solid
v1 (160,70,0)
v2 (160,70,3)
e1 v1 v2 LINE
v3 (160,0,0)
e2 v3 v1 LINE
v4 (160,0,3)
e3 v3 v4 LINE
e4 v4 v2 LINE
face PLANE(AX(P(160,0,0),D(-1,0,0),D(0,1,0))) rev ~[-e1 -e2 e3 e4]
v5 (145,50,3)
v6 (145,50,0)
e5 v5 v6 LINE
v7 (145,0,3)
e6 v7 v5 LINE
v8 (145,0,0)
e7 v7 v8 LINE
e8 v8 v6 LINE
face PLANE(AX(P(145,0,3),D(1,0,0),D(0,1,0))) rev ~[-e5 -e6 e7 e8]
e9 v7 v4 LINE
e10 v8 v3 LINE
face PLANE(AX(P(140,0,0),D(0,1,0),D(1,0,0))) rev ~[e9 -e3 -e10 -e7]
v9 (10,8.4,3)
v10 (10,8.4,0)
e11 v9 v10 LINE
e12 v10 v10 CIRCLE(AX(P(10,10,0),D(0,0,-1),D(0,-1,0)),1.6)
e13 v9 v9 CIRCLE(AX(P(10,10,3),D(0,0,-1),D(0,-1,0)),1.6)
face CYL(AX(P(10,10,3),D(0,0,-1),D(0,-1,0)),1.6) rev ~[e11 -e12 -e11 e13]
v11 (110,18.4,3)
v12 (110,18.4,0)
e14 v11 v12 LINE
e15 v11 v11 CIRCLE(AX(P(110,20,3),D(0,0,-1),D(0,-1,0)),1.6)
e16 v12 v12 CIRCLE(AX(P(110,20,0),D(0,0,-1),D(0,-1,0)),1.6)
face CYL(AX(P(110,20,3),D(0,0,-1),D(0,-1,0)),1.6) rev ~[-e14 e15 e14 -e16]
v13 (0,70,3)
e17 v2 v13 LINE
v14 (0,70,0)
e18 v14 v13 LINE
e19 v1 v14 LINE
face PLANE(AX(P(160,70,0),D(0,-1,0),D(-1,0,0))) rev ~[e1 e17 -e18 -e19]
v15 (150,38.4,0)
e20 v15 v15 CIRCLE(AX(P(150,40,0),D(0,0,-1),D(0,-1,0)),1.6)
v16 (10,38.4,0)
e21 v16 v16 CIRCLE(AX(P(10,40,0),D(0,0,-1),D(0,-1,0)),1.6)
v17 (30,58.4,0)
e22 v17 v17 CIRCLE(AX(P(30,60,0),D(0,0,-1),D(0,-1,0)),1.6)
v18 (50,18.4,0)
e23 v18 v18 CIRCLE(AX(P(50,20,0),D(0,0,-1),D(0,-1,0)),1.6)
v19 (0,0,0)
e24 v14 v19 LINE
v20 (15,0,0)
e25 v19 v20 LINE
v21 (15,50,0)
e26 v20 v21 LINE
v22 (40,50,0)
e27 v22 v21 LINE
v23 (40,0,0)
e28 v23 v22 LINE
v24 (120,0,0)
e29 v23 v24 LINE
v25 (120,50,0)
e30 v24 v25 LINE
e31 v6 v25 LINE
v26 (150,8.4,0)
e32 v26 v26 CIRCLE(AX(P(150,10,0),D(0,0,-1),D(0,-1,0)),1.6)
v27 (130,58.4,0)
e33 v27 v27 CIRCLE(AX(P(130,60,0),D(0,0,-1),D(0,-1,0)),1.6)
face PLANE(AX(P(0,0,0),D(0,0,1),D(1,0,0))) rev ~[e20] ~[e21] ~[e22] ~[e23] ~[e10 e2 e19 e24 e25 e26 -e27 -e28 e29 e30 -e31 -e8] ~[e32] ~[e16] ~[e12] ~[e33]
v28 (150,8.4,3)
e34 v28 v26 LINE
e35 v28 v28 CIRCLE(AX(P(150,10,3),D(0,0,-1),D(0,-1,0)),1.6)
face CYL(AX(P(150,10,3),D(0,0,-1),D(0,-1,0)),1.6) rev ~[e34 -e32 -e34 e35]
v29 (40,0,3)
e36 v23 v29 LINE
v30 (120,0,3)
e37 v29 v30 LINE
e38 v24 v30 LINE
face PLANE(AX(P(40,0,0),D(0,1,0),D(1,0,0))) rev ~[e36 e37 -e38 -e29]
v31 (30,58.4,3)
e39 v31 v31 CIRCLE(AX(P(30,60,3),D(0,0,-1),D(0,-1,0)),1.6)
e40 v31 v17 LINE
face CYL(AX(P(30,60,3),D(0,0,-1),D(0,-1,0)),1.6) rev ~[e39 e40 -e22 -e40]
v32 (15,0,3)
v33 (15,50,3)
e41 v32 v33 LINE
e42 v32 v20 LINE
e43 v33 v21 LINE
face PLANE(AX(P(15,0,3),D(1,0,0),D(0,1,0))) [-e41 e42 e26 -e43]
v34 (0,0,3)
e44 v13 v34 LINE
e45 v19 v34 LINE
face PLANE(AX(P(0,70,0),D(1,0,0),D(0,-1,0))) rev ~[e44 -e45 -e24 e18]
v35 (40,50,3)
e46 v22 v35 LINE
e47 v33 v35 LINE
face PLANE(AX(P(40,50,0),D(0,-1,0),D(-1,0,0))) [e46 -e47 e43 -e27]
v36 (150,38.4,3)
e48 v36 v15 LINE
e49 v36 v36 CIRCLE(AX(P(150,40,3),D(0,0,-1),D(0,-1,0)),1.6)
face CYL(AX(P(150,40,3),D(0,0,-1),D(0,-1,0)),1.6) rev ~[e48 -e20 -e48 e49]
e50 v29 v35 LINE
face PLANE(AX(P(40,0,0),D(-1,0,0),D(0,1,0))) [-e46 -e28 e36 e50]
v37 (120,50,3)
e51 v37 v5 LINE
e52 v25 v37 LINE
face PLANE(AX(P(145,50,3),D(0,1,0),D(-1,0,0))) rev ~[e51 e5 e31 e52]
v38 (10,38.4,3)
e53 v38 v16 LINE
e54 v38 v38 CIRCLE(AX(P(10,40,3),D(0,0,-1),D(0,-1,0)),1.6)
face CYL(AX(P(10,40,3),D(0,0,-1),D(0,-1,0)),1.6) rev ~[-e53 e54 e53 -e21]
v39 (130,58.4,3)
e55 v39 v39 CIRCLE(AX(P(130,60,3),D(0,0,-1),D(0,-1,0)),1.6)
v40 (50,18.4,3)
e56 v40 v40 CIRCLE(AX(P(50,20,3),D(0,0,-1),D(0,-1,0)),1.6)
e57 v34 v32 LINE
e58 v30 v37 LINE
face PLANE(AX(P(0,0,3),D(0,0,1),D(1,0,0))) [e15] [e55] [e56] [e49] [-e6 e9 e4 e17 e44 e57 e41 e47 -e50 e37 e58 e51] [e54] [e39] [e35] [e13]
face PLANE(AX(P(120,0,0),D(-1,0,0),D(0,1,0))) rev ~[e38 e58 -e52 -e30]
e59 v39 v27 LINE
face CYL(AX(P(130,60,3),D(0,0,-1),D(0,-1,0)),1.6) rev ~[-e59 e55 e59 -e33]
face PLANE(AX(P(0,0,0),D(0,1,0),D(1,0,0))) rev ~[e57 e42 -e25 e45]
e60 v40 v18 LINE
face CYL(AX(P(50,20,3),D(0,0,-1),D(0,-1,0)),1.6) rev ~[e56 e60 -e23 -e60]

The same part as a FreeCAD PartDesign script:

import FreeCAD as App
import Part
import Sketcher
Q = App.Units.Quantity


def add_polygon(sketch, points):
    """Adds a closed chain of lines whose ends are joined by coincident constraints."""
    first, n = sketch.GeometryCount, len(points)
    for a, b in zip(points, points[1:] + points[:1]):
        sketch.addGeometry(Part.LineSegment(App.Vector(*a, 0), App.Vector(*b, 0)), False)
    for i in range(n):
        sketch.addConstraint(Sketcher.Constraint("Coincident", first + i, 2, first + (i + 1) % n, 1))

doc = App.newDocument("Part")
body = doc.addObject("PartDesign::Body", "Body")

# Sketch on XY plane
sketch1 = body.newObject("Sketcher::SketchObject", "Sketch")
sketch1.AttachmentSupport = (doc.getObject("XY_Plane"), [""])
sketch1.MapMode = "FlatFace"
add_polygon(sketch1, [(0, 70), (0, 0), (20, 0), (20, 50), (40, 50), (40, 0), (120, 0), (120, 50), (140, 50), (140, 0), (160, 0), (160, 70)])  # lines 0-11
sketch1.addConstraint([
    Sketcher.Constraint("Vertical", 0),
    Sketcher.Constraint("Horizontal", 1),
    Sketcher.Constraint("Vertical", 2),
    Sketcher.Constraint("Horizontal", 3),
    Sketcher.Constraint("Vertical", 4),
    Sketcher.Constraint("Horizontal", 5),
    Sketcher.Constraint("Vertical", 6),
    Sketcher.Constraint("Horizontal", 7),
    Sketcher.Constraint("Vertical", 8),
    Sketcher.Constraint("Horizontal", 9),
    Sketcher.Constraint("Vertical", 10),
    Sketcher.Constraint("Horizontal", 11),
    Sketcher.Constraint("Coincident", 0, 2, -1, 1),
    Sketcher.Constraint("PointOnObject", 4, 2, -1),
    Sketcher.Constraint("PointOnObject", 8, 2, -1),
    Sketcher.Constraint("Horizontal", 3, 2, 6, 2),
    Sketcher.Constraint("Equal", 1, 3),
    Sketcher.Constraint("Equal", 3, 7),
    Sketcher.Constraint("Equal", 7, 9),
    Sketcher.Constraint("DistanceX", 1, 1, 1, 2, Q("20 mm")),
    Sketcher.Constraint("DistanceX", 11, 2, 11, 1, Q("160 mm")),
    Sketcher.Constraint("DistanceY", 0, 2, 0, 1, Q("70 mm")),
    Sketcher.Constraint("DistanceY", 2, 1, 2, 2, Q("50 mm")),
])
pad1 = body.newObject("PartDesign::Pad", "Pad")
pad1.Profile = sketch1
pad1.Length = 3

# Sketch on XY plane
sketch2 = body.newObject("Sketcher::SketchObject", "Sketch001")
sketch2.AttachmentSupport = (doc.getObject("XY_Plane"), [""])
sketch2.MapMode = "FlatFace"
sketch2.AttachmentOffset = App.Placement(App.Vector(0, 0, 3), App.Rotation())
sketch2.addGeometry([
    Part.Circle(App.Vector(10, 10, 0), App.Vector(0, 0, 1), 1.6),
    Part.Circle(App.Vector(150, 10, 0), App.Vector(0, 0, 1), 1.6),
    Part.Circle(App.Vector(10, 40, 0), App.Vector(0, 0, 1), 1.6),
    Part.Circle(App.Vector(150, 40, 0), App.Vector(0, 0, 1), 1.6),
], False)
sketch2.addConstraint([
    Sketcher.Constraint("Equal", 0, 1),
    Sketcher.Constraint("Equal", 1, 2),
    Sketcher.Constraint("Equal", 2, 3),
    Sketcher.Constraint("Horizontal", 0, 3, 1, 3),
    Sketcher.Constraint("Horizontal", 2, 3, 3, 3),
    Sketcher.Constraint("Vertical", 0, 3, 2, 3),
    Sketcher.Constraint("Vertical", 1, 3, 3, 3),
    Sketcher.Constraint("Diameter", 0, Q("3.2 mm")),
    Sketcher.Constraint("DistanceX", -1, 1, 0, 3, Q("10 mm")),
    Sketcher.Constraint("DistanceY", -1, 1, 0, 3, Q("10 mm")),
    Sketcher.Constraint("DistanceX", -1, 1, 1, 3, Q("150 mm")),
    Sketcher.Constraint("DistanceY", -1, 1, 2, 3, Q("40 mm")),
])
doc.recompute()
hole = body.newObject("PartDesign::Hole", "Hole")
hole.Profile = sketch2
hole.ThreadType = "None"
hole.Diameter = 3.2
hole.DepthType = "ThroughAll"

# Sketch on XY plane
sketch3 = body.newObject("Sketcher::SketchObject", "Sketch002")
sketch3.AttachmentSupport = (doc.getObject("XY_Plane"), [""])
sketch3.MapMode = "FlatFace"
sketch3.AttachmentOffset = App.Placement(App.Vector(0, 0, 3), App.Rotation())
sketch3.addGeometry([
    Part.Circle(App.Vector(30, 60, 0), App.Vector(0, 0, 1), 1.6),
    Part.Circle(App.Vector(130, 60, 0), App.Vector(0, 0, 1), 1.6),
], False)
sketch3.addConstraint([
    Sketcher.Constraint("Equal", 0, 1),
    Sketcher.Constraint("Horizontal", 0, 3, 1, 3),
    Sketcher.Constraint("Diameter", 0, Q("3.2 mm")),
    Sketcher.Constraint("DistanceX", -1, 1, 0, 3, Q("30 mm")),
    Sketcher.Constraint("DistanceY", -1, 1, 0, 3, Q("60 mm")),
    Sketcher.Constraint("DistanceX", -1, 1, 1, 3, Q("130 mm")),
])
doc.recompute()
hole2 = body.newObject("PartDesign::Hole", "Hole001")
hole2.Profile = sketch3
hole2.ThreadType = "None"
hole2.Diameter = 3.2
hole2.DepthType = "ThroughAll"

# Sketch on XY plane
sketch4 = body.newObject("Sketcher::SketchObject", "Sketch003")
sketch4.AttachmentSupport = (doc.getObject("XY_Plane"), [""])
sketch4.MapMode = "FlatFace"
sketch4.AttachmentOffset = App.Placement(App.Vector(0, 0, 3), App.Rotation())
sketch4.addGeometry([
    Part.Circle(App.Vector(50, 20, 0), App.Vector(0, 0, 1), 1.6),
    Part.Circle(App.Vector(110, 20, 0), App.Vector(0, 0, 1), 1.6),
], False)
sketch4.addConstraint([
    Sketcher.Constraint("Equal", 0, 1),
    Sketcher.Constraint("Horizontal", 0, 3, 1, 3),
    Sketcher.Constraint("Diameter", 0, Q("3.2 mm")),
    Sketcher.Constraint("DistanceX", -1, 1, 0, 3, Q("50 mm")),
    Sketcher.Constraint("DistanceY", -1, 1, 0, 3, Q("20 mm")),
    Sketcher.Constraint("DistanceX", -1, 1, 1, 3, Q("110 mm")),
])
doc.recompute()
hole3 = body.newObject("PartDesign::Hole", "Hole002")
hole3.Profile = sketch4
hole3.ThreadType = "None"
hole3.Diameter = 3.2
hole3.DepthType = "ThroughAll"

# Sketch on XY plane
sketch5 = body.newObject("Sketcher::SketchObject", "Sketch004")
sketch5.AttachmentSupport = (doc.getObject("XY_Plane"), [""])
sketch5.MapMode = "FlatFace"
sketch5.AttachmentOffset = App.Placement(App.Vector(0, 0, 3), App.Rotation())
add_polygon(sketch5, [(15, 0), (20, 0), (20, 50), (15, 50)])  # lines 0-3
sketch5.addConstraint([
    Sketcher.Constraint("Horizontal", 0),
    Sketcher.Constraint("Vertical", 1),
    Sketcher.Constraint("Horizontal", 2),
    Sketcher.Constraint("Vertical", 3),
    Sketcher.Constraint("PointOnObject", 0, 2, -1),
    Sketcher.Constraint("DistanceX", 0, 1, 0, 2, Q("5 mm")),
    Sketcher.Constraint("DistanceY", 1, 1, 1, 2, Q("50 mm")),
    Sketcher.Constraint("DistanceX", -1, 1, 0, 2, Q("20 mm")),
])
pocket1 = body.newObject("PartDesign::Pocket", "Pocket")
pocket1.Profile = sketch5
pocket1.Length = 3

# Sketch on XY plane
sketch6 = body.newObject("Sketcher::SketchObject", "Sketch005")
sketch6.AttachmentSupport = (doc.getObject("XY_Plane"), [""])
sketch6.MapMode = "FlatFace"
sketch6.AttachmentOffset = App.Placement(App.Vector(0, 0, 3), App.Rotation())
add_polygon(sketch6, [(145, 50), (140, 50), (140, 0), (145, 0)])  # lines 0-3
sketch6.addConstraint([
    Sketcher.Constraint("Horizontal", 0),
    Sketcher.Constraint("Vertical", 1),
    Sketcher.Constraint("Horizontal", 2),
    Sketcher.Constraint("Vertical", 3),
    Sketcher.Constraint("PointOnObject", 1, 2, -1),
    Sketcher.Constraint("DistanceX", 0, 2, 0, 1, Q("5 mm")),
    Sketcher.Constraint("DistanceY", 1, 2, 1, 1, Q("50 mm")),
    Sketcher.Constraint("DistanceX", -1, 1, 0, 2, Q("140 mm")),
])
pocket2 = body.newObject("PartDesign::Pocket", "Pocket001")
pocket2.Profile = sketch6
pocket2.Length = 3

doc.recompute()
